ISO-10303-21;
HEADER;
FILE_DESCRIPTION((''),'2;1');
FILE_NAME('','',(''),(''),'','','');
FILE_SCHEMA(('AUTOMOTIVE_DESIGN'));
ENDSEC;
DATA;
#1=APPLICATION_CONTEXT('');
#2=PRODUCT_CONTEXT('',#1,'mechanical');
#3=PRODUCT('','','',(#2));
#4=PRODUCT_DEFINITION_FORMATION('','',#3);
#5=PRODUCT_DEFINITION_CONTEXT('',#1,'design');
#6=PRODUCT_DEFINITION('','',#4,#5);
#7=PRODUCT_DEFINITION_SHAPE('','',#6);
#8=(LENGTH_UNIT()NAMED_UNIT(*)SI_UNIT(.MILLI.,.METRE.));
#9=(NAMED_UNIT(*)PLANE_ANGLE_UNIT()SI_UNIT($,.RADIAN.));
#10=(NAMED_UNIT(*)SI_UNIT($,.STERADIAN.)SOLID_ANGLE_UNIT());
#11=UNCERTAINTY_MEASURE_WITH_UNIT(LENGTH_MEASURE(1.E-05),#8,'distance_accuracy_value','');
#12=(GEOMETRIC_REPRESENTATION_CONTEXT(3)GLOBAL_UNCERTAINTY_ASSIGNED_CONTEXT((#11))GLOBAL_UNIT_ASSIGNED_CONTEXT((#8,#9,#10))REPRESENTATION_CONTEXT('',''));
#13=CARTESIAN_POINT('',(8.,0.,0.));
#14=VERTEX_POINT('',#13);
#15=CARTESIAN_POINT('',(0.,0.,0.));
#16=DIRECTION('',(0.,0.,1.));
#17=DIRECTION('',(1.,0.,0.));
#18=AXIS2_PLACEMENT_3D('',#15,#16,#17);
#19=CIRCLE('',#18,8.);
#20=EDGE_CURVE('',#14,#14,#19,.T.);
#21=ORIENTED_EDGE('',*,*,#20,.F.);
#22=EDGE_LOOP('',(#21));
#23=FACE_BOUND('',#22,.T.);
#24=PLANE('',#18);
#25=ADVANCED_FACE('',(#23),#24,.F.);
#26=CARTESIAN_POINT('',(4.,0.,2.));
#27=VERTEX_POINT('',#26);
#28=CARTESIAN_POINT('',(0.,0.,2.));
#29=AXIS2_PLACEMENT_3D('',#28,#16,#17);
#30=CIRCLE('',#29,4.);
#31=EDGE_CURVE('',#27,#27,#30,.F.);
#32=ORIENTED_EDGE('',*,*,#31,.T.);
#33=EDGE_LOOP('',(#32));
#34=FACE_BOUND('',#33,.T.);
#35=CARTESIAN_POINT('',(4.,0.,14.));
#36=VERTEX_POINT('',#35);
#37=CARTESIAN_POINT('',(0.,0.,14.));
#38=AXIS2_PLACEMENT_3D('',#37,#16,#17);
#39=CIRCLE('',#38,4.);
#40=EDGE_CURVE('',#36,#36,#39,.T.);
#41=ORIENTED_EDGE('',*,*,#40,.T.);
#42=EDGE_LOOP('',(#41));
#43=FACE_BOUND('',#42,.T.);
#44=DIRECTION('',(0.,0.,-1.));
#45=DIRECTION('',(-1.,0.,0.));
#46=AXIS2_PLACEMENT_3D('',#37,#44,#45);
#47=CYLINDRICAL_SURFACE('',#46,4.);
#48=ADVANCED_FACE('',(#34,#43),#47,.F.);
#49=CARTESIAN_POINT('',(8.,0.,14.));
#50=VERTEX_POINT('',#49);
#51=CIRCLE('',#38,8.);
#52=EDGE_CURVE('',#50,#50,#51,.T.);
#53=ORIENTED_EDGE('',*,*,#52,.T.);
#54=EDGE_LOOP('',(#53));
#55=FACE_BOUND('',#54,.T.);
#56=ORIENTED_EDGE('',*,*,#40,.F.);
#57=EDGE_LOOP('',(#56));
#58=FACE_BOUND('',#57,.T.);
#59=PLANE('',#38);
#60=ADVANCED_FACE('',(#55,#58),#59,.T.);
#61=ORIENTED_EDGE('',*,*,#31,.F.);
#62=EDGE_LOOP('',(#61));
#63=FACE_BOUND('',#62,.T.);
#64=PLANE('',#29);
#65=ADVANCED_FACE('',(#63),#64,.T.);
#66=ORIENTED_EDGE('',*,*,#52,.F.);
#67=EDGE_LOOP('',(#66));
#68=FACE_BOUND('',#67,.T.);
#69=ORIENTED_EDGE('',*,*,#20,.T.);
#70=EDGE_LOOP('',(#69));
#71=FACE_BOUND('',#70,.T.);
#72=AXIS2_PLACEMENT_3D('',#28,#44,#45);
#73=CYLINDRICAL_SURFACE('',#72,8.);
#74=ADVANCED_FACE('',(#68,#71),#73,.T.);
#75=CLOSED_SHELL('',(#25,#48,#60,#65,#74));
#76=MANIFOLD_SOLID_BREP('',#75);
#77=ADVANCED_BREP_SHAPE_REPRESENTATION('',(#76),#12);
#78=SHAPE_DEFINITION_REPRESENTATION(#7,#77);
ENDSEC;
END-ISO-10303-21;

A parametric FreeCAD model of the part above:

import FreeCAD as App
import Part
import Sketcher

doc = App.newDocument("Part")
body = doc.addObject("PartDesign::Body", "Body")

sketch1 = body.newObject("Sketcher::SketchObject", "Sketch")
sketch1.AttachmentSupport = (doc.getObject("XY_Plane"), [""])
sketch1.MapMode = "FlatFace"
sketch1.addGeometry(Part.Circle(App.Vector(0, 0, 0), App.Vector(0, 0, 1), 8), False)
sketch1.addConstraint([
    Sketcher.Constraint("Coincident", 0, 3, -1, 1),
    Sketcher.Constraint("Diameter", 0, 16.0),
])
pad1 = body.newObject("PartDesign::Pad", "Pad")
pad1.Profile = sketch1
pad1.Length = 2

sketch2 = body.newObject("Sketcher::SketchObject", "Sketch001")
sketch2.AttachmentSupport = (doc.getObject("XY_Plane"), [""])
sketch2.MapMode = "FlatFace"
sketch2.AttachmentOffset = App.Placement(App.Vector(0, 0, 2), App.Rotation())
sketch2.addGeometry([
    Part.Circle(App.Vector(0, 0, 0), App.Vector(0, 0, 1), 8),
    Part.Circle(App.Vector(0, 0, 0), App.Vector(0, 0, 1), 4),
], False)
sketch2.addConstraint([
    Sketcher.Constraint("Coincident", 0, 3, -1, 1),
    Sketcher.Constraint("Coincident", 1, 3, -1, 1),
    Sketcher.Constraint("Diameter", 0, 16.0),
    Sketcher.Constraint("Diameter", 1, 8.0),
])
pad2 = body.newObject("PartDesign::Pad", "Pad001")
pad2.Profile = sketch2
pad2.Length = 12

doc.recompute()
